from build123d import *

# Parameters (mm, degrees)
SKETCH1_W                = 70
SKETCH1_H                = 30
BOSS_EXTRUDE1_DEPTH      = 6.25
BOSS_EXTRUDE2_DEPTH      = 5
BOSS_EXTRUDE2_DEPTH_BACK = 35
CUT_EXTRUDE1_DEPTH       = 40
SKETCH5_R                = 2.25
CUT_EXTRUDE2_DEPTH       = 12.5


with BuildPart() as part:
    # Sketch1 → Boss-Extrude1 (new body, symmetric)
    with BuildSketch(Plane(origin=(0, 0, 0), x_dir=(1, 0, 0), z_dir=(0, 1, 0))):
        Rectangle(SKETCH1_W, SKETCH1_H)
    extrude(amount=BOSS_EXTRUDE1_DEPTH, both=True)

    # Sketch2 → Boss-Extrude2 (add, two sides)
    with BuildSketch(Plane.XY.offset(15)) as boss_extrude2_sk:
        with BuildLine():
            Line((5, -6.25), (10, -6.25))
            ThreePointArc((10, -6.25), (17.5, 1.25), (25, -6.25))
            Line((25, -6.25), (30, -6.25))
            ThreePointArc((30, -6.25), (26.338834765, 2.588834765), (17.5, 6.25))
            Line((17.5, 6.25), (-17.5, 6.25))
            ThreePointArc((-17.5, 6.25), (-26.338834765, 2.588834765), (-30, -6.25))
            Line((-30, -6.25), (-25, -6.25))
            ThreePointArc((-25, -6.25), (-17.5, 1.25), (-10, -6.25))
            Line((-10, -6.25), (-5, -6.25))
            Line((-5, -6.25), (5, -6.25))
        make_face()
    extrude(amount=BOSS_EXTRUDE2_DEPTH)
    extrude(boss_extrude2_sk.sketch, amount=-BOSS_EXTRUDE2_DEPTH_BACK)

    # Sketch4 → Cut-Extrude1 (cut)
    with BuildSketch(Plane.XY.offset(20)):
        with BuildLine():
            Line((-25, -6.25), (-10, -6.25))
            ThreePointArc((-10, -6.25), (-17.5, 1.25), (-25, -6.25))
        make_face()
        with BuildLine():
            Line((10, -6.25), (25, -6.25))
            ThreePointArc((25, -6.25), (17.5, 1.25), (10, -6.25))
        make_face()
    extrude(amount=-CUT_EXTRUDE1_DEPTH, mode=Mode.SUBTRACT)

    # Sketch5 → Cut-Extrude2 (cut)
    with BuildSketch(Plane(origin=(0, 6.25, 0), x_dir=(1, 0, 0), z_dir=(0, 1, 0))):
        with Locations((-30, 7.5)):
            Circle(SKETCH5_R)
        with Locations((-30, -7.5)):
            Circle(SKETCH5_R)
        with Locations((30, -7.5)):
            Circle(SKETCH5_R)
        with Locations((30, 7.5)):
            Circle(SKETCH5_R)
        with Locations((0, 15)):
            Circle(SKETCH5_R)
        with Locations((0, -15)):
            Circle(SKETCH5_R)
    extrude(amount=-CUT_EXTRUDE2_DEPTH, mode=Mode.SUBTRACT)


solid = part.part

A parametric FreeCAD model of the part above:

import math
import FreeCAD as App
import Part
import Sketcher

doc = App.newDocument("Part")
params = doc.addObject("Spreadsheet::Sheet", "Params")
for row, (alias, value) in enumerate([
    ("sketch1_width", "70 mm"),
    ("sketch1_height", "30 mm"),
    ("pad1_length", "12.5 mm"),
    ("sketch2_radius", "7.5 mm"),
    ("sketch2_radius2", "12.5 mm"),
    ("sketch2_width", "35 mm"),
    ("pad2_length", "5 mm"),
    ("pad2_length2", "35 mm"),
    ("sketch3_radius", "7.5 mm"),
    ("pocket1_length", "40 mm"),
    ("sketch4_diameter", "4.5 mm"),
    ("pocket2_length", "12.5 mm"),
], start=1):
    params.set(f"A{row}", alias)
    params.set(f"B{row}", "=" + value)
    params.setAlias(f"B{row}", alias)

body = doc.addObject("PartDesign::Body", "Body")

# Sketch on XZ plane
sketch1 = body.newObject("Sketcher::SketchObject", "Sketch")
sketch1.AttachmentSupport = (doc.getObject("XZ_Plane"), [""])
sketch1.MapMode = "FlatFace"
sketch1.addGeometry([
    Part.LineSegment(App.Vector(-35, -15, 0), App.Vector(-35, 15, 0)),
    Part.LineSegment(App.Vector(-35, 15, 0), App.Vector(35, 15, 0)),
    Part.LineSegment(App.Vector(35, 15, 0), App.Vector(35, -15, 0)),
    Part.LineSegment(App.Vector(35, -15, 0), App.Vector(-35, -15, 0)),
], False)
sketch1.addConstraint([
    Sketcher.Constraint("Coincident", 0, 2, 1, 1),
    Sketcher.Constraint("Coincident", 1, 2, 2, 1),
    Sketcher.Constraint("Coincident", 2, 2, 3, 1),
    Sketcher.Constraint("Coincident", 3, 2, 0, 1),
    Sketcher.Constraint("Vertical", 0),
    Sketcher.Constraint("Horizontal", 1),
    Sketcher.Constraint("Vertical", 2),
    Sketcher.Constraint("Horizontal", 3),
    Sketcher.Constraint("Symmetric", 0, 2, 2, 2, -1, 1),
    Sketcher.Constraint("DistanceX", 1, 1, 1, 2, 70.0),
    Sketcher.Constraint("DistanceY", 0, 1, 0, 2, 30.0),
])
sketch1.setExpression("Constraints[9]", "Params.sketch1_width")
sketch1.setExpression("Constraints[10]", "Params.sketch1_height")
pad1 = body.newObject("PartDesign::Pad", "Pad")
pad1.Profile = sketch1
pad1.setExpression("Length", "Params.pad1_length")
pad1.Midplane = True

# Sketch on XY plane
sketch2 = body.newObject("Sketcher::SketchObject", "Sketch001")
sketch2.AttachmentSupport = (doc.getObject("XY_Plane"), [""])
sketch2.MapMode = "FlatFace"
sketch2.AttachmentOffset = App.Placement(App.Vector(0, 0, 15), App.Rotation())
sketch2.addGeometry([
    Part.ArcOfCircle(Part.Circle(App.Vector(17.5, -6.25, 0), App.Vector(0, 0, 1), 7.5), math.radians(0), math.radians(180)),  # 0
    Part.LineSegment(App.Vector(25, -6.25, 0), App.Vector(30, -6.25, 0)),  # 1
    Part.ArcOfCircle(Part.Circle(App.Vector(17.5, -6.25, 0), App.Vector(0, 0, 1), 12.5), math.radians(0), math.radians(90)),  # 2
    Part.LineSegment(App.Vector(17.5, 6.25, 0), App.Vector(-17.5, 6.25, 0)),  # 3
    Part.ArcOfCircle(Part.Circle(App.Vector(-17.5, -6.25, 0), App.Vector(0, 0, 1), 12.5), math.radians(90), math.radians(180)),  # 4
    Part.LineSegment(App.Vector(-30, -6.25, 0), App.Vector(-25, -6.25, 0)),  # 5
    Part.ArcOfCircle(Part.Circle(App.Vector(-17.5, -6.25, 0), App.Vector(0, 0, 1), 7.5), math.radians(0), math.radians(180)),  # 6
    Part.LineSegment(App.Vector(-10, -6.25, 0), App.Vector(10, -6.25, 0)),  # 7
], False)
sketch2.addConstraint([
    Sketcher.Constraint("Coincident", 0, 1, 1, 1),
    Sketcher.Constraint("Coincident", 1, 2, 2, 1),
    Sketcher.Constraint("Tangent", 2, 2, 3, 1),
    Sketcher.Constraint("Tangent", 3, 2, 4, 1),
    Sketcher.Constraint("Coincident", 4, 2, 5, 1),
    Sketcher.Constraint("Coincident", 5, 2, 6, 2),
    Sketcher.Constraint("Coincident", 6, 1, 7, 1),
    Sketcher.Constraint("Coincident", 7, 2, 0, 2),
    Sketcher.Constraint("Horizontal", 1),
    Sketcher.Constraint("Horizontal", 3),
    Sketcher.Constraint("Horizontal", 5),
    Sketcher.Constraint("Horizontal", 7),
    Sketcher.Constraint("Coincident", 2, 3, 0, 3),
    Sketcher.Constraint("Coincident", 6, 3, 4, 3),
    Sketcher.Constraint("Equal", 2, 4),
    Sketcher.Constraint("Equal", 0, 6),
    Sketcher.Constraint("Symmetric", 1, 2, 4, 2, -2),
    Sketcher.Constraint("Horizontal", 6, 3, 0, 1),
    Sketcher.Constraint("Horizontal", 5, 2, 6, 1),
    Sketcher.Constraint("Radius", 0, 7.5),
    Sketcher.Constraint("Radius", 2, 12.5),
    Sketcher.Constraint("DistanceX", 3, 2, 3, 1, 35.0),
    Sketcher.Constraint("DistanceY", 0, 3, -1, 1, 6.25),
])
sketch2.setExpression("Constraints[19]", "Params.sketch2_radius")
sketch2.setExpression("Constraints[20]", "Params.sketch2_radius2")
sketch2.setExpression("Constraints[21]", "Params.sketch2_width")
pad2 = body.newObject("PartDesign::Pad", "Pad001")
pad2.Profile = sketch2
pad2.Type = "TwoLengths"
pad2.setExpression("Length", "Params.pad2_length")
pad2.setExpression("Length2", "Params.pad2_length2")

# Sketch on XY plane
sketch3 = body.newObject("Sketcher::SketchObject", "Sketch002")
sketch3.AttachmentSupport = (doc.getObject("XY_Plane"), [""])
sketch3.MapMode = "FlatFace"
sketch3.AttachmentOffset = App.Placement(App.Vector(0, 0, 20), App.Rotation())
sketch3.addGeometry([
    Part.LineSegment(App.Vector(-25, -6.25, 0), App.Vector(-10, -6.25, 0)),
    Part.ArcOfCircle(Part.Circle(App.Vector(-17.5, -6.25, 0), App.Vector(0, 0, 1), 7.5), math.radians(0), math.radians(180)),
    Part.LineSegment(App.Vector(10, -6.25, 0), App.Vector(25, -6.25, 0)),
    Part.ArcOfCircle(Part.Circle(App.Vector(17.5, -6.25, 0), App.Vector(0, 0, 1), 7.5), math.radians(0), math.radians(180)),
], False)
sketch3.addConstraint([
    Sketcher.Constraint("Coincident", 0, 1, 1, 2),
    Sketcher.Constraint("Coincident", 1, 1, 0, 2),
    Sketcher.Constraint("Coincident", 2, 1, 3, 2),
    Sketcher.Constraint("Coincident", 3, 1, 2, 2),
    Sketcher.Constraint("Horizontal", 0),
    Sketcher.Constraint("Horizontal", 2),
    Sketcher.Constraint("Equal", 1, 3),
    Sketcher.Constraint("Symmetric", 1, 3, 3, 3, -2),
    Sketcher.Constraint("Horizontal", 3, 3, 0, 1),
    Sketcher.Constraint("Horizontal", 1, 1, 2, 1),
    Sketcher.Constraint("Radius", 1, 7.5),
    Sketcher.Constraint("DistanceX", 0, 1, -1, 1, 25.0),
    Sketcher.Constraint("DistanceY", 1, 3, -1, 1, 6.25),
])
sketch3.setExpression("Constraints[10]", "Params.sketch3_radius")
pocket1 = body.newObject("PartDesign::Pocket", "Pocket")
pocket1.Profile = sketch3
pocket1.setExpression("Length", "Params.pocket1_length")

# Sketch on XZ plane
sketch4 = body.newObject("Sketcher::SketchObject", "Sketch003")
sketch4.AttachmentSupport = (doc.getObject("XZ_Plane"), [""])
sketch4.MapMode = "FlatFace"
sketch4.AttachmentOffset = App.Placement(App.Vector(0, 0, -6.25), App.Rotation())
sketch4.addGeometry([
    Part.Circle(App.Vector(-30, -7.5, 0), App.Vector(0, 0, 1), 2.25),  # 0
    Part.Circle(App.Vector(-30, 7.5, 0), App.Vector(0, 0, 1), 2.25),  # 1
    Part.Circle(App.Vector(30, 7.5, 0), App.Vector(0, 0, 1), 2.25),  # 2
    Part.Circle(App.Vector(30, -7.5, 0), App.Vector(0, 0, 1), 2.25),  # 3
    Part.Circle(App.Vector(0, -15, 0), App.Vector(0, 0, 1), 2.25),  # 4
    Part.Circle(App.Vector(0, 15, 0), App.Vector(0, 0, 1), 2.25),  # 5
], False)
sketch4.addConstraint([
    Sketcher.Constraint("Equal", 0, 1),
    Sketcher.Constraint("Equal", 1, 2),
    Sketcher.Constraint("Equal", 2, 3),
    Sketcher.Constraint("Equal", 3, 4),
    Sketcher.Constraint("Equal", 4, 5),
    Sketcher.Constraint("Symmetric", 0, 3, 2, 3, -1, 1),
    Sketcher.Constraint("Symmetric", 1, 3, 3, 3, -1, 1),
    Sketcher.Constraint("Symmetric", 4, 3, 5, 3, -1, 1),
    Sketcher.Constraint("Symmetric", 1, 3, 2, 3, -2),
    Sketcher.Constraint("PointOnObject", 4, 3, -2),
    Sketcher.Constraint("Diameter", 0, 4.5),
    Sketcher.Constraint("DistanceX", 0, 3, -1, 1, 30.0),
    Sketcher.Constraint("DistanceY", 4, 3, -1, 1, 15.0),
    Sketcher.Constraint("DistanceY", 0, 3, 1, 3, 15.0),
])
sketch4.setExpression("Constraints[10]", "Params.sketch4_diameter")
pocket2 = body.newObject("PartDesign::Pocket", "Pocket001")
pocket2.Profile = sketch4
pocket2.setExpression("Length", "Params.pocket2_length")
pocket2.Reversed = True

doc.recompute()
